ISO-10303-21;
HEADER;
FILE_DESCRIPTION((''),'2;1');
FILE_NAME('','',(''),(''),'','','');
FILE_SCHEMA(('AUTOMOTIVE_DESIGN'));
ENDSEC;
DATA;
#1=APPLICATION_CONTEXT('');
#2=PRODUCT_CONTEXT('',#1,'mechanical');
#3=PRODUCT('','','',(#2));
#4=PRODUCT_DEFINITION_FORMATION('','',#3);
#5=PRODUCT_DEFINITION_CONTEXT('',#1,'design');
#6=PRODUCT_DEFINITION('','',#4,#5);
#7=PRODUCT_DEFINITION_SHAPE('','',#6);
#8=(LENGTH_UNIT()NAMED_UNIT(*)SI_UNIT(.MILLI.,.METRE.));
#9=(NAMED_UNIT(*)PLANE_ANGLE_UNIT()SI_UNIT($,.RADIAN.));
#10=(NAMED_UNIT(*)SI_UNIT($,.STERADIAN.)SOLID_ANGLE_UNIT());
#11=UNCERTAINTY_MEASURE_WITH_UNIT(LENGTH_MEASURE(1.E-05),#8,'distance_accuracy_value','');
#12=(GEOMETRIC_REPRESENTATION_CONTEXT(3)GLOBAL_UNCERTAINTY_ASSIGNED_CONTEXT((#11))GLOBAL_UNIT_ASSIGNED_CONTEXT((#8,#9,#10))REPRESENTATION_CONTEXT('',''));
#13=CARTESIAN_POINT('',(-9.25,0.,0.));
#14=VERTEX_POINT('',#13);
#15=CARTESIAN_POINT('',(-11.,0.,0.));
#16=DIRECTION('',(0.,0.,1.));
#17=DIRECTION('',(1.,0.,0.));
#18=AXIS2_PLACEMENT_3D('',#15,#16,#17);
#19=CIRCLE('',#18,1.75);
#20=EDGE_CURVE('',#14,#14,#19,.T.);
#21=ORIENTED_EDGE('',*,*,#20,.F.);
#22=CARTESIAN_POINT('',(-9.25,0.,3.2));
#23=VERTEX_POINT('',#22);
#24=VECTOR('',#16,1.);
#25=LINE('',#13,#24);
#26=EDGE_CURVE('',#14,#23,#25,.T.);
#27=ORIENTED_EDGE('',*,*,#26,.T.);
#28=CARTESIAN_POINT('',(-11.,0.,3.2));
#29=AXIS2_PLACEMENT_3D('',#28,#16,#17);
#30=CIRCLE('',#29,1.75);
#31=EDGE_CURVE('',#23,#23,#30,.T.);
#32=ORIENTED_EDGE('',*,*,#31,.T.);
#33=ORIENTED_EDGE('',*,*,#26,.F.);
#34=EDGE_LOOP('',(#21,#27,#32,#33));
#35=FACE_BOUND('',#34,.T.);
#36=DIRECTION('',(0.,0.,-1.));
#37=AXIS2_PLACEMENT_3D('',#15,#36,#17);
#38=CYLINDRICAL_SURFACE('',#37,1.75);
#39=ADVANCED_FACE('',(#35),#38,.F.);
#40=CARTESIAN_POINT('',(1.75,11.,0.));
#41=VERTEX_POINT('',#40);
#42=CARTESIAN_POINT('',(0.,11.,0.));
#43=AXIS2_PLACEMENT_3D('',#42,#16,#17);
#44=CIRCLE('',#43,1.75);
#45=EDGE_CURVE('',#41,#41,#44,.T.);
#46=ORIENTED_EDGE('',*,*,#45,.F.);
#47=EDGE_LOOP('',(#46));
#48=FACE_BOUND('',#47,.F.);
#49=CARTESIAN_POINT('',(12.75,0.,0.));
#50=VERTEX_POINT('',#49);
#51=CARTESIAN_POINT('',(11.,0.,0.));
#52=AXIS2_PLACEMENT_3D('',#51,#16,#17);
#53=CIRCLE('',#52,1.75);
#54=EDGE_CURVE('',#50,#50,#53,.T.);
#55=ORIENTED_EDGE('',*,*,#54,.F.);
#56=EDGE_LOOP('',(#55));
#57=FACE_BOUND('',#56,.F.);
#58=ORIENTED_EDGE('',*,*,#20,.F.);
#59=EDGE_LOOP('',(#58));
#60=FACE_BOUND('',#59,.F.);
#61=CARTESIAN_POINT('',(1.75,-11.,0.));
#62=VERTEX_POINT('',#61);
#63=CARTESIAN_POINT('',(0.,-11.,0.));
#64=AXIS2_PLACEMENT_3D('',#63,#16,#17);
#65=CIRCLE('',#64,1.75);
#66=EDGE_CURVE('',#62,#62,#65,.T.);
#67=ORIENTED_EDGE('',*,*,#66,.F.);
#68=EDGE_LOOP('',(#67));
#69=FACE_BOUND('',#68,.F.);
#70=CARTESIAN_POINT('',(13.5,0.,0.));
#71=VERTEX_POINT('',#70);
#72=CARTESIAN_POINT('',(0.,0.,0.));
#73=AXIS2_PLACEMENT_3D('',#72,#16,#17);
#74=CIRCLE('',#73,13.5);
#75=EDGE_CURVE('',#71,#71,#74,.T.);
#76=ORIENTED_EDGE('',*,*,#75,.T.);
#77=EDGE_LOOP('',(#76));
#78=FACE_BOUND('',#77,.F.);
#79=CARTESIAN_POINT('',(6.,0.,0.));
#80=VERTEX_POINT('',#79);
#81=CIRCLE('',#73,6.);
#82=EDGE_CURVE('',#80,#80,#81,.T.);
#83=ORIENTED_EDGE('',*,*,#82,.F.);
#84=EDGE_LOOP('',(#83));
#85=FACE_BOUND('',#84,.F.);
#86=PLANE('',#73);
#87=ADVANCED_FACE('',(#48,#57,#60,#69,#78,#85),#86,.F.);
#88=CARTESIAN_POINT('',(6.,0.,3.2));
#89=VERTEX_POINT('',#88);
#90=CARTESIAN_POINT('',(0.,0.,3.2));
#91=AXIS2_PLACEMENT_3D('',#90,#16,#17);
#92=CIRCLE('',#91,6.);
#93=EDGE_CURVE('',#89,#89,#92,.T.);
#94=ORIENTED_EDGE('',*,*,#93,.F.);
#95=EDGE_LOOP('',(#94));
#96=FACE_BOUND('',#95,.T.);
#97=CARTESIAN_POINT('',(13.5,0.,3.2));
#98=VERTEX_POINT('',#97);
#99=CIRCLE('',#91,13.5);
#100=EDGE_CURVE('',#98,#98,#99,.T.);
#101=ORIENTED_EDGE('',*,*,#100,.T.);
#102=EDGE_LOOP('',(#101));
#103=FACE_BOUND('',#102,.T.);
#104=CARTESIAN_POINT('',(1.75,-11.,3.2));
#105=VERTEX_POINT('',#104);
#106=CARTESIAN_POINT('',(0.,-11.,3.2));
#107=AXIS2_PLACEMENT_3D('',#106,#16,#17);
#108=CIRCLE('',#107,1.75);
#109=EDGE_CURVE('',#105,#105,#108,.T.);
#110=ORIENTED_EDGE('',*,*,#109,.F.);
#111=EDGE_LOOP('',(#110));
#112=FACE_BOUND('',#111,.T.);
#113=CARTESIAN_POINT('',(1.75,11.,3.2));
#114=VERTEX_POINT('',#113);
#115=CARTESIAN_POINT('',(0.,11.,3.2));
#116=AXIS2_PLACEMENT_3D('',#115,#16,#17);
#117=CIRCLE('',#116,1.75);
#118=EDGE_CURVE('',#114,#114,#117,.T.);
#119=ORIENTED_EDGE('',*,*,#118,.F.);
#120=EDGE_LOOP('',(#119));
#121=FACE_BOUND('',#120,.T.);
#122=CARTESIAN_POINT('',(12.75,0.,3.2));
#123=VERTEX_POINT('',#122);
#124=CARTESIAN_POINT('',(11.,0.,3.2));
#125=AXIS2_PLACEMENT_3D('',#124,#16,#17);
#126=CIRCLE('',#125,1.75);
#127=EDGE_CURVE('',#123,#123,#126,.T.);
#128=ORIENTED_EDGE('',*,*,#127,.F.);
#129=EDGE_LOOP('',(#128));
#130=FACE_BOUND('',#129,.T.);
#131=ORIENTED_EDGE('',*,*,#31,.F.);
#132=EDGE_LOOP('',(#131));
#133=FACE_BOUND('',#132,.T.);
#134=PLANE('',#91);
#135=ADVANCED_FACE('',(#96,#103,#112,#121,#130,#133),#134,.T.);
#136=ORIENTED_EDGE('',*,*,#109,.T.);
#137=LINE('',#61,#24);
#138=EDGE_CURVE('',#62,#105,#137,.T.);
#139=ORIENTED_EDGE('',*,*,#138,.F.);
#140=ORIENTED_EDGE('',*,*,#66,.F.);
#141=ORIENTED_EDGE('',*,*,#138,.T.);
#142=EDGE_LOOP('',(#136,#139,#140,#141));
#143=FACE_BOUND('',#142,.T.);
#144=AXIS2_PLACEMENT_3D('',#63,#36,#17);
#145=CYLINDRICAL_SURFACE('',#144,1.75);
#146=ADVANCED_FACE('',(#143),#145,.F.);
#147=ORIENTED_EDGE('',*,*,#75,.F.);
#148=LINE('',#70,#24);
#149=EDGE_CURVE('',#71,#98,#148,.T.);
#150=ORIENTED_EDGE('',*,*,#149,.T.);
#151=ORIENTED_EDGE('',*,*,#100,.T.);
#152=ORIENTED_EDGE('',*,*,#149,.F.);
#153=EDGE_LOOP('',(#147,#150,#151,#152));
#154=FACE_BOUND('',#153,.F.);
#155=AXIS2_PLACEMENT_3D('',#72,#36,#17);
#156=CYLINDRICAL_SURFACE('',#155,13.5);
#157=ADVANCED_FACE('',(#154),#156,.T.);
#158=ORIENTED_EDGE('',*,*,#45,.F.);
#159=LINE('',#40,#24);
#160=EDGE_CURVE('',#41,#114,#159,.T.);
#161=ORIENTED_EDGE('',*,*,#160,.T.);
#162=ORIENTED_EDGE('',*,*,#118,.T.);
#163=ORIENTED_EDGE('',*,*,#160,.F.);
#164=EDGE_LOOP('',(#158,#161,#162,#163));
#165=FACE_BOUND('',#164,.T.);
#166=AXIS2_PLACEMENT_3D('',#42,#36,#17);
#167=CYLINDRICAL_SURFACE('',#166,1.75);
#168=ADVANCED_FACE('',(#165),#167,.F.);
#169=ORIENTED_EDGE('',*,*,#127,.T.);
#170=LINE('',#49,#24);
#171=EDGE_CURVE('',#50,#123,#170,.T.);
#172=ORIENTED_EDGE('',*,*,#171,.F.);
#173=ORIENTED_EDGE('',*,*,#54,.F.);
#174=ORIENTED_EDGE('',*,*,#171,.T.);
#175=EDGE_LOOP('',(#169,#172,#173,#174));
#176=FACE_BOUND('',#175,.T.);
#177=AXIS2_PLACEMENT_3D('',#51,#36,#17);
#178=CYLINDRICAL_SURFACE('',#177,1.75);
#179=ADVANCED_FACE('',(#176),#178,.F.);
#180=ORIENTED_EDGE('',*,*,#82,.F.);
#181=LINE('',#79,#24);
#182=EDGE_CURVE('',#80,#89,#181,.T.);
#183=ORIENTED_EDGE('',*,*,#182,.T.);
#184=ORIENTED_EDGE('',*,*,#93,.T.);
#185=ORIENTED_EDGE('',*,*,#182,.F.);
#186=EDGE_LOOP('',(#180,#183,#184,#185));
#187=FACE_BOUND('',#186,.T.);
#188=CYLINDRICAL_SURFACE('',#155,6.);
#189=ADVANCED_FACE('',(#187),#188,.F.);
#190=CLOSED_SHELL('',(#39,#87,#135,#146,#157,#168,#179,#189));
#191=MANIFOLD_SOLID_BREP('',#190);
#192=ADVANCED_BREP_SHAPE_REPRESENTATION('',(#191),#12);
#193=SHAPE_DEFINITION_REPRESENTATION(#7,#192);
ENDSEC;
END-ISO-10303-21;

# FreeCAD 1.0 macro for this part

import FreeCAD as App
import Part
import Sketcher

V = App.Vector

doc = App.newDocument("Part")
body = doc.addObject("PartDesign::Body", "Body")

# Sketch on XY plane
sketch1 = body.newObject("Sketcher::SketchObject", "Sketch")
sketch1.AttachmentSupport = (doc.getObject("XY_Plane"), [""])
sketch1.MapMode = "FlatFace"
sketch1.addGeometry([
    Part.Circle(V(0, 0, 0), V(0, 0, 1), 13.5),  # 0
    Part.Circle(V(0, -11, 0), V(0, 0, 1), 1.8),  # 1
    Part.Circle(V(-11, 0, 0), V(0, 0, 1), 1.8),  # 2
    Part.Circle(V(0, 0, 0), V(0, 0, 1), 6),  # 3
    Part.Circle(V(11, 0, 0), V(0, 0, 1), 1.8),  # 4
    Part.Circle(V(0, 11, 0), V(0, 0, 1), 1.8),  # 5
], False)
sketch1.addConstraint([
    Sketcher.Constraint("Coincident", 0, 3, -1, 1),
    Sketcher.Constraint("Coincident", 3, 3, -1, 1),
    Sketcher.Constraint("Equal", 1, 2),
    Sketcher.Constraint("Equal", 2, 4),
    Sketcher.Constraint("Equal", 4, 5),
    Sketcher.Constraint("Symmetric", 2, 3, 4, 3, -1, 1),
    Sketcher.Constraint("Symmetric", 1, 3, 5, 3, -1, 1),
    Sketcher.Constraint("PointOnObject", 1, 3, -2),
    Sketcher.Constraint("PointOnObject", 2, 3, -1),
    Sketcher.Constraint("Diameter", 0, 27.0),
    Sketcher.Constraint("Diameter", 3, 12.0),
    Sketcher.Constraint("Diameter", 1, 3.5),
    Sketcher.Constraint("DistanceY", 1, 3, -1, 1, 11.0),
    Sketcher.Constraint("DistanceX", 2, 3, -1, 1, 11.0),
])
pad1 = body.newObject("PartDesign::Pad", "Pad")
pad1.Profile = sketch1
pad1.Length = 3.2

doc.recompute()
